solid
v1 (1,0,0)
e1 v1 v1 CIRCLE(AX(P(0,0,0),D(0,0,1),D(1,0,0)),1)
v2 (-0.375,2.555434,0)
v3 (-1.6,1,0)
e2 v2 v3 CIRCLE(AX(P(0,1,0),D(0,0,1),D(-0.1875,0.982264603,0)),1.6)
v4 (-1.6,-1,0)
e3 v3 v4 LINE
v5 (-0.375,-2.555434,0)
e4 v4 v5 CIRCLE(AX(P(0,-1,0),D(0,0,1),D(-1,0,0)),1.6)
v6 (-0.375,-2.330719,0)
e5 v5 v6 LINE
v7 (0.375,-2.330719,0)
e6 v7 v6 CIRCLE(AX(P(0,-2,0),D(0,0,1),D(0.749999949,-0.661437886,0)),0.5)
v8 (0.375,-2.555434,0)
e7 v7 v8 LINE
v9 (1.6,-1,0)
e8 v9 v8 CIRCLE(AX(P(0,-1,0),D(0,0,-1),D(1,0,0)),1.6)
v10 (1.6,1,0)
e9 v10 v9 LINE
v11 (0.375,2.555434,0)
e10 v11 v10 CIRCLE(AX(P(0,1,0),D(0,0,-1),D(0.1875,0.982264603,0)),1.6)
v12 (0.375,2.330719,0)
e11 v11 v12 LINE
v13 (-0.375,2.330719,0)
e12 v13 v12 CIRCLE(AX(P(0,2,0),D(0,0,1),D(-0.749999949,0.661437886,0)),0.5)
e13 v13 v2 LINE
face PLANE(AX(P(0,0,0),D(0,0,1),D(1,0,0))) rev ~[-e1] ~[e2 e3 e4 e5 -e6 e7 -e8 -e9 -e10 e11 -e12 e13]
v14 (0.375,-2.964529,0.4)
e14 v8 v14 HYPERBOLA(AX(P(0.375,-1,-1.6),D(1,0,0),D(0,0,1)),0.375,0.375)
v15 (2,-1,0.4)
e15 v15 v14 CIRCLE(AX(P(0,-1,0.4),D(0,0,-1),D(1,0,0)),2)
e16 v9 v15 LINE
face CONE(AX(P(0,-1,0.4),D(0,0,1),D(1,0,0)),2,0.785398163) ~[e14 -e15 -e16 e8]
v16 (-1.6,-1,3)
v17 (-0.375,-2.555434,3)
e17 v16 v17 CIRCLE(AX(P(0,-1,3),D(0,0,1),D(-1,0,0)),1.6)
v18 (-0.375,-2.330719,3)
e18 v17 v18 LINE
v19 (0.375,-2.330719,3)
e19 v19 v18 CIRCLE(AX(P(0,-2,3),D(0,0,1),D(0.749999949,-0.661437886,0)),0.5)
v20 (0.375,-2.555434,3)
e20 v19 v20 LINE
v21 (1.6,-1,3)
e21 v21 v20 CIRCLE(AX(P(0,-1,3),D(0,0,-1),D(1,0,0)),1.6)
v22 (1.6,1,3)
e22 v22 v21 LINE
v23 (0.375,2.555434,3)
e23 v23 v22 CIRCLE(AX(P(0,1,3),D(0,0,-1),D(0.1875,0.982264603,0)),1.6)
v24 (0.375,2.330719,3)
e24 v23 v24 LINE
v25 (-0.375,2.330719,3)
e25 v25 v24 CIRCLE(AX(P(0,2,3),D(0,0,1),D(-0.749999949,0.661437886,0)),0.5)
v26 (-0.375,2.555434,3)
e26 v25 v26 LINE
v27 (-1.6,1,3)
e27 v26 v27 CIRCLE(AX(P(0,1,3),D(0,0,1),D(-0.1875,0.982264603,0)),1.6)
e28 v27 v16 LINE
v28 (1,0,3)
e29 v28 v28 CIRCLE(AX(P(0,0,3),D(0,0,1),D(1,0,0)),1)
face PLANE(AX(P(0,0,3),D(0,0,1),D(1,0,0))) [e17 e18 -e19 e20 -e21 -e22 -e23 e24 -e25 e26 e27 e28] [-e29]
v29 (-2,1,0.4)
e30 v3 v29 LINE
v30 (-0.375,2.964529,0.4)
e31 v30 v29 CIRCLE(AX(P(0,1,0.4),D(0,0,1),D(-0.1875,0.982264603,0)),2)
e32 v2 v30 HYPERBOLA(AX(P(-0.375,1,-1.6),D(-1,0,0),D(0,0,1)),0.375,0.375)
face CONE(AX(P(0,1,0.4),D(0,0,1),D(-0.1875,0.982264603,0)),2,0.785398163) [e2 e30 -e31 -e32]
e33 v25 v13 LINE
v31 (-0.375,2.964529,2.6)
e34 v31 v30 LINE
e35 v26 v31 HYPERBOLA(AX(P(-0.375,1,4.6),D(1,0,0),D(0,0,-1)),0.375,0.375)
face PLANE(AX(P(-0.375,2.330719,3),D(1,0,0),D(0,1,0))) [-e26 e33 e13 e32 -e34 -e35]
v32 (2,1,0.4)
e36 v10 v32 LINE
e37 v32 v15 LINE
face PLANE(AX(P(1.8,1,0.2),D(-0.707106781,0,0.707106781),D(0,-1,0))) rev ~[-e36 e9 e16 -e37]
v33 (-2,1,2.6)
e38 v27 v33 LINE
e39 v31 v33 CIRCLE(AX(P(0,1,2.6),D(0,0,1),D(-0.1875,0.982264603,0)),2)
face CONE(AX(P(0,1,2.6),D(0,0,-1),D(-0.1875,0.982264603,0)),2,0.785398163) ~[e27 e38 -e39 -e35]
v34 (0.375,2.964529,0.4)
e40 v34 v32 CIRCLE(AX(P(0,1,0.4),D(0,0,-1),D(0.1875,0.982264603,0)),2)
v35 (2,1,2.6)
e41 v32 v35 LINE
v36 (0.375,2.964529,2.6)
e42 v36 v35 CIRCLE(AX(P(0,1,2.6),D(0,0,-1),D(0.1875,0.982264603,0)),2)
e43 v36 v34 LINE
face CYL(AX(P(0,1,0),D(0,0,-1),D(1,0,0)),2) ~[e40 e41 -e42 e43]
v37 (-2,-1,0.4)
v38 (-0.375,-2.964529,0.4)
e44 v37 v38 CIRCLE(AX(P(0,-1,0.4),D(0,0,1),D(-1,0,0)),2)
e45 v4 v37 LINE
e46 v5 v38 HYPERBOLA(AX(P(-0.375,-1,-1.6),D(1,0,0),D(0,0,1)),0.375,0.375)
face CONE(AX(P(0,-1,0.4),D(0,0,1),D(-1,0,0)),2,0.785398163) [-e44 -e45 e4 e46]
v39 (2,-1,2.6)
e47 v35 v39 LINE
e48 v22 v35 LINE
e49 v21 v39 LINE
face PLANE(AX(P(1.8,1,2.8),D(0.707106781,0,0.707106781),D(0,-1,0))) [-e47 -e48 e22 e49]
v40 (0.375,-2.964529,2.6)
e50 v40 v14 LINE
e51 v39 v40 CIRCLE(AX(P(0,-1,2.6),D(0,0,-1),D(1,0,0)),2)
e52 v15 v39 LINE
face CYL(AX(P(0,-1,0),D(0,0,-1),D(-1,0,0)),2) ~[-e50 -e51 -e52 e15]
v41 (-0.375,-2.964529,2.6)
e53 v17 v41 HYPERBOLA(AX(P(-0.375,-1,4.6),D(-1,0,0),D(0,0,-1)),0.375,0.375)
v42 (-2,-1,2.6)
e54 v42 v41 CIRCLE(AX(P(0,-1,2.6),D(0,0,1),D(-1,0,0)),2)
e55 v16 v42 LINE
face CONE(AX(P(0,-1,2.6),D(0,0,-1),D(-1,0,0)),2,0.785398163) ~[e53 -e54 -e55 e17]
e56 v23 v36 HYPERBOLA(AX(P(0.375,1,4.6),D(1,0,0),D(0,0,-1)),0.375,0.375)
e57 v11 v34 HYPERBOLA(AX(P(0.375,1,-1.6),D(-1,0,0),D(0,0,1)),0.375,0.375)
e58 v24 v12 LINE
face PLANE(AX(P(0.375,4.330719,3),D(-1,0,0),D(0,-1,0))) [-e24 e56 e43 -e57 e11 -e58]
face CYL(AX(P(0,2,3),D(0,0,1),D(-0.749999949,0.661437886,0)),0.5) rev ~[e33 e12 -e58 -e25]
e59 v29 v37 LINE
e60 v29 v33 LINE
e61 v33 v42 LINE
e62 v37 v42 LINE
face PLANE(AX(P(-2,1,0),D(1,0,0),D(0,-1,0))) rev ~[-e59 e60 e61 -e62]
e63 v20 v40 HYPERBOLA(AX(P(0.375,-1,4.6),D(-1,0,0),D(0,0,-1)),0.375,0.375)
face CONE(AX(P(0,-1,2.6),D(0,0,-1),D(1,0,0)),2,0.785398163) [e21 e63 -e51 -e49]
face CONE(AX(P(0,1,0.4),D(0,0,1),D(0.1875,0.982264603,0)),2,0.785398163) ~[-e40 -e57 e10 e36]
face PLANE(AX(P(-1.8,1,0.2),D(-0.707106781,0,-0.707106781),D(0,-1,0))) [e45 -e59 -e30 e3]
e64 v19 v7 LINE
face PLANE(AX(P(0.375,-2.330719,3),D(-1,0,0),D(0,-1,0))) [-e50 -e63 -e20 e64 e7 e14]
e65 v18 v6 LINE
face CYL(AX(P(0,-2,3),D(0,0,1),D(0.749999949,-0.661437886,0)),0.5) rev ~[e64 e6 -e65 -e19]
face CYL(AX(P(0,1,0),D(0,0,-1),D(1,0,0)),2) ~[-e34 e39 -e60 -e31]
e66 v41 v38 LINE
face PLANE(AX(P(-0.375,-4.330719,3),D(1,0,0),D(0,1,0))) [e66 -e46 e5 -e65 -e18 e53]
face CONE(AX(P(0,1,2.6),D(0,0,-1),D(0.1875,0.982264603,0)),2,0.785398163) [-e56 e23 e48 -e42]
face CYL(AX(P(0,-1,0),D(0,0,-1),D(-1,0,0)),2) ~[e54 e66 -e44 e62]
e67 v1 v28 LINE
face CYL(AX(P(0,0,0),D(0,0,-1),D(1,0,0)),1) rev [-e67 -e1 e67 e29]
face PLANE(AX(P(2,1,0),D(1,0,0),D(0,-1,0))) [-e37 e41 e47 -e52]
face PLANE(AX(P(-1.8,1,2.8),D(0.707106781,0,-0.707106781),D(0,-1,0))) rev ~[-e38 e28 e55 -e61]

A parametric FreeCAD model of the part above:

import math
import FreeCAD as App
import Part
import Sketcher

V = App.Vector


def edges_at(feature, points):
    """Names of the edges that pass closest to the given points."""
    edges = feature.Shape.Edges
    near = lambda p: min(range(len(edges)), key=lambda i: edges[i].distToShape(Part.Vertex(*p))[0])
    return sorted({f"Edge{near(p) + 1}" for p in points})

doc = App.newDocument("Part")
params = doc.addObject("Spreadsheet::Sheet", "Params")
for row, (alias, value) in enumerate([
    ("sketch1_diameter", "2 mm"),
    ("sketch1_radius", "2 mm"),
    ("sketch1_height", "2 mm"),
    ("pad1_length", "3 mm"),
    ("sketch2_radius", "0.5 mm"),
    ("sketch2_height", "2 mm"),
    ("sketch2_width", "0.75 mm"),
    ("chamfer_size", "0.4 mm"),
], start=1):
    params.set(f"A{row}", alias)
    params.set(f"B{row}", "=" + value)
    params.setAlias(f"B{row}", alias)

body = doc.addObject("PartDesign::Body", "Body")

# Sketch on XY plane
sketch1 = body.newObject("Sketcher::SketchObject", "Sketch")
sketch1.AttachmentSupport = (doc.getObject("XY_Plane"), [""])
sketch1.MapMode = "FlatFace"
sketch1.addGeometry([
    Part.ArcOfCircle(Part.Circle(V(0, 1, 0), V(0, 0, 1), 2), math.radians(0), math.radians(180)),  # 0
    Part.LineSegment(V(-2, 1, 0), V(-2, -1, 0)),  # 1
    Part.ArcOfCircle(Part.Circle(V(0, -1, 0), V(0, 0, 1), 2), math.radians(180), math.radians(360)),  # 2
    Part.LineSegment(V(2, -1, 0), V(2, 1, 0)),  # 3
    Part.Circle(V(0, 0, 0), V(0, 0, 1), 1),  # 4
], False)
sketch1.addConstraint([
    Sketcher.Constraint("Tangent", 0, 2, 1, 1),
    Sketcher.Constraint("Tangent", 1, 2, 2, 1),
    Sketcher.Constraint("Tangent", 2, 2, 3, 1),
    Sketcher.Constraint("Tangent", 3, 2, 0, 1),
    Sketcher.Constraint("Vertical", 1),
    Sketcher.Constraint("Vertical", 3),
    Sketcher.Constraint("Coincident", 4, 3, -1, 1),
    Sketcher.Constraint("Symmetric", 0, 3, 2, 3, -1, 1),
    Sketcher.Constraint("Diameter", 4, 2.0),
    Sketcher.Constraint("Radius", 0, 2.0),
    Sketcher.Constraint("DistanceY", 1, 2, 1, 1, 2.0),
])
sketch1.setExpression("Constraints[8]", "Params.sketch1_diameter")
sketch1.setExpression("Constraints[9]", "Params.sketch1_radius")
sketch1.setExpression("Constraints[10]", "Params.sketch1_height")
pad1 = body.newObject("PartDesign::Pad", "Pad")
pad1.Profile = sketch1
pad1.setExpression("Length", "Params.pad1_length")

# Sketch on XY plane
sketch2 = body.newObject("Sketcher::SketchObject", "Sketch001")
sketch2.AttachmentSupport = (doc.getObject("XY_Plane"), [""])
sketch2.MapMode = "FlatFace"
sketch2.AttachmentOffset = App.Placement(V(0, 0, 3), App.Rotation())
sketch2.addGeometry([
    Part.ArcOfCircle(Part.Circle(V(0, 2, 0), V(0, 0, 1), 0.5), math.radians(139), math.radians(401)),
    Part.LineSegment(V(0.4, 2.3, 0), V(0.4, 4.3, 0)),
    Part.LineSegment(V(0.4, 4.3, 0), V(-0.4, 4.3, 0)),
    Part.LineSegment(V(-0.4, 4.3, 0), V(-0.4, 2.3, 0)),
], False)
sketch2.addConstraint([
    Sketcher.Constraint("Coincident", 0, 2, 1, 1),
    Sketcher.Constraint("Coincident", 1, 2, 2, 1),
    Sketcher.Constraint("Coincident", 2, 2, 3, 1),
    Sketcher.Constraint("Coincident", 3, 2, 0, 1),
    Sketcher.Constraint("Vertical", 1),
    Sketcher.Constraint("Horizontal", 2),
    Sketcher.Constraint("Vertical", 3),
    Sketcher.Constraint("Symmetric", 0, 2, 3, 2, -2),
    Sketcher.Constraint("Radius", 0, 0.5),
    Sketcher.Constraint("DistanceY", 1, 1, 1, 2, 2.0),
    Sketcher.Constraint("DistanceY", -1, 1, 0, 3, 2.0),
    Sketcher.Constraint("DistanceX", 2, 2, 2, 1, 0.75),
])
sketch2.setExpression("Constraints[8]", "Params.sketch2_radius")
sketch2.setExpression("Constraints[9]", "Params.sketch2_height")
sketch2.setExpression("Constraints[11]", "Params.sketch2_width")
pocket1 = body.newObject("PartDesign::Pocket", "Pocket")
pocket1.Profile = sketch2
pocket1.Type = "ThroughAll"
doc.recompute()

polarpattern = body.newObject("PartDesign::PolarPattern", "PolarPattern")
polarpattern.Originals = [pocket1]
polarpattern.Axis = (doc.getObject("Z_Axis"), [""])
polarpattern.Angle = 360
polarpattern.Occurrences = 2
body.Tip = polarpattern
doc.recompute()

chamfer = body.newObject("PartDesign::Chamfer", "Chamfer")
chamfer.Base = (polarpattern, edges_at(polarpattern, [
    (-2, 0, 0),
    (-2, 0, 3),
    (2, 0, 0),
    (2, 0, 3),
]))
chamfer.setExpression("Size", "Params.chamfer_size")

doc.recompute()
